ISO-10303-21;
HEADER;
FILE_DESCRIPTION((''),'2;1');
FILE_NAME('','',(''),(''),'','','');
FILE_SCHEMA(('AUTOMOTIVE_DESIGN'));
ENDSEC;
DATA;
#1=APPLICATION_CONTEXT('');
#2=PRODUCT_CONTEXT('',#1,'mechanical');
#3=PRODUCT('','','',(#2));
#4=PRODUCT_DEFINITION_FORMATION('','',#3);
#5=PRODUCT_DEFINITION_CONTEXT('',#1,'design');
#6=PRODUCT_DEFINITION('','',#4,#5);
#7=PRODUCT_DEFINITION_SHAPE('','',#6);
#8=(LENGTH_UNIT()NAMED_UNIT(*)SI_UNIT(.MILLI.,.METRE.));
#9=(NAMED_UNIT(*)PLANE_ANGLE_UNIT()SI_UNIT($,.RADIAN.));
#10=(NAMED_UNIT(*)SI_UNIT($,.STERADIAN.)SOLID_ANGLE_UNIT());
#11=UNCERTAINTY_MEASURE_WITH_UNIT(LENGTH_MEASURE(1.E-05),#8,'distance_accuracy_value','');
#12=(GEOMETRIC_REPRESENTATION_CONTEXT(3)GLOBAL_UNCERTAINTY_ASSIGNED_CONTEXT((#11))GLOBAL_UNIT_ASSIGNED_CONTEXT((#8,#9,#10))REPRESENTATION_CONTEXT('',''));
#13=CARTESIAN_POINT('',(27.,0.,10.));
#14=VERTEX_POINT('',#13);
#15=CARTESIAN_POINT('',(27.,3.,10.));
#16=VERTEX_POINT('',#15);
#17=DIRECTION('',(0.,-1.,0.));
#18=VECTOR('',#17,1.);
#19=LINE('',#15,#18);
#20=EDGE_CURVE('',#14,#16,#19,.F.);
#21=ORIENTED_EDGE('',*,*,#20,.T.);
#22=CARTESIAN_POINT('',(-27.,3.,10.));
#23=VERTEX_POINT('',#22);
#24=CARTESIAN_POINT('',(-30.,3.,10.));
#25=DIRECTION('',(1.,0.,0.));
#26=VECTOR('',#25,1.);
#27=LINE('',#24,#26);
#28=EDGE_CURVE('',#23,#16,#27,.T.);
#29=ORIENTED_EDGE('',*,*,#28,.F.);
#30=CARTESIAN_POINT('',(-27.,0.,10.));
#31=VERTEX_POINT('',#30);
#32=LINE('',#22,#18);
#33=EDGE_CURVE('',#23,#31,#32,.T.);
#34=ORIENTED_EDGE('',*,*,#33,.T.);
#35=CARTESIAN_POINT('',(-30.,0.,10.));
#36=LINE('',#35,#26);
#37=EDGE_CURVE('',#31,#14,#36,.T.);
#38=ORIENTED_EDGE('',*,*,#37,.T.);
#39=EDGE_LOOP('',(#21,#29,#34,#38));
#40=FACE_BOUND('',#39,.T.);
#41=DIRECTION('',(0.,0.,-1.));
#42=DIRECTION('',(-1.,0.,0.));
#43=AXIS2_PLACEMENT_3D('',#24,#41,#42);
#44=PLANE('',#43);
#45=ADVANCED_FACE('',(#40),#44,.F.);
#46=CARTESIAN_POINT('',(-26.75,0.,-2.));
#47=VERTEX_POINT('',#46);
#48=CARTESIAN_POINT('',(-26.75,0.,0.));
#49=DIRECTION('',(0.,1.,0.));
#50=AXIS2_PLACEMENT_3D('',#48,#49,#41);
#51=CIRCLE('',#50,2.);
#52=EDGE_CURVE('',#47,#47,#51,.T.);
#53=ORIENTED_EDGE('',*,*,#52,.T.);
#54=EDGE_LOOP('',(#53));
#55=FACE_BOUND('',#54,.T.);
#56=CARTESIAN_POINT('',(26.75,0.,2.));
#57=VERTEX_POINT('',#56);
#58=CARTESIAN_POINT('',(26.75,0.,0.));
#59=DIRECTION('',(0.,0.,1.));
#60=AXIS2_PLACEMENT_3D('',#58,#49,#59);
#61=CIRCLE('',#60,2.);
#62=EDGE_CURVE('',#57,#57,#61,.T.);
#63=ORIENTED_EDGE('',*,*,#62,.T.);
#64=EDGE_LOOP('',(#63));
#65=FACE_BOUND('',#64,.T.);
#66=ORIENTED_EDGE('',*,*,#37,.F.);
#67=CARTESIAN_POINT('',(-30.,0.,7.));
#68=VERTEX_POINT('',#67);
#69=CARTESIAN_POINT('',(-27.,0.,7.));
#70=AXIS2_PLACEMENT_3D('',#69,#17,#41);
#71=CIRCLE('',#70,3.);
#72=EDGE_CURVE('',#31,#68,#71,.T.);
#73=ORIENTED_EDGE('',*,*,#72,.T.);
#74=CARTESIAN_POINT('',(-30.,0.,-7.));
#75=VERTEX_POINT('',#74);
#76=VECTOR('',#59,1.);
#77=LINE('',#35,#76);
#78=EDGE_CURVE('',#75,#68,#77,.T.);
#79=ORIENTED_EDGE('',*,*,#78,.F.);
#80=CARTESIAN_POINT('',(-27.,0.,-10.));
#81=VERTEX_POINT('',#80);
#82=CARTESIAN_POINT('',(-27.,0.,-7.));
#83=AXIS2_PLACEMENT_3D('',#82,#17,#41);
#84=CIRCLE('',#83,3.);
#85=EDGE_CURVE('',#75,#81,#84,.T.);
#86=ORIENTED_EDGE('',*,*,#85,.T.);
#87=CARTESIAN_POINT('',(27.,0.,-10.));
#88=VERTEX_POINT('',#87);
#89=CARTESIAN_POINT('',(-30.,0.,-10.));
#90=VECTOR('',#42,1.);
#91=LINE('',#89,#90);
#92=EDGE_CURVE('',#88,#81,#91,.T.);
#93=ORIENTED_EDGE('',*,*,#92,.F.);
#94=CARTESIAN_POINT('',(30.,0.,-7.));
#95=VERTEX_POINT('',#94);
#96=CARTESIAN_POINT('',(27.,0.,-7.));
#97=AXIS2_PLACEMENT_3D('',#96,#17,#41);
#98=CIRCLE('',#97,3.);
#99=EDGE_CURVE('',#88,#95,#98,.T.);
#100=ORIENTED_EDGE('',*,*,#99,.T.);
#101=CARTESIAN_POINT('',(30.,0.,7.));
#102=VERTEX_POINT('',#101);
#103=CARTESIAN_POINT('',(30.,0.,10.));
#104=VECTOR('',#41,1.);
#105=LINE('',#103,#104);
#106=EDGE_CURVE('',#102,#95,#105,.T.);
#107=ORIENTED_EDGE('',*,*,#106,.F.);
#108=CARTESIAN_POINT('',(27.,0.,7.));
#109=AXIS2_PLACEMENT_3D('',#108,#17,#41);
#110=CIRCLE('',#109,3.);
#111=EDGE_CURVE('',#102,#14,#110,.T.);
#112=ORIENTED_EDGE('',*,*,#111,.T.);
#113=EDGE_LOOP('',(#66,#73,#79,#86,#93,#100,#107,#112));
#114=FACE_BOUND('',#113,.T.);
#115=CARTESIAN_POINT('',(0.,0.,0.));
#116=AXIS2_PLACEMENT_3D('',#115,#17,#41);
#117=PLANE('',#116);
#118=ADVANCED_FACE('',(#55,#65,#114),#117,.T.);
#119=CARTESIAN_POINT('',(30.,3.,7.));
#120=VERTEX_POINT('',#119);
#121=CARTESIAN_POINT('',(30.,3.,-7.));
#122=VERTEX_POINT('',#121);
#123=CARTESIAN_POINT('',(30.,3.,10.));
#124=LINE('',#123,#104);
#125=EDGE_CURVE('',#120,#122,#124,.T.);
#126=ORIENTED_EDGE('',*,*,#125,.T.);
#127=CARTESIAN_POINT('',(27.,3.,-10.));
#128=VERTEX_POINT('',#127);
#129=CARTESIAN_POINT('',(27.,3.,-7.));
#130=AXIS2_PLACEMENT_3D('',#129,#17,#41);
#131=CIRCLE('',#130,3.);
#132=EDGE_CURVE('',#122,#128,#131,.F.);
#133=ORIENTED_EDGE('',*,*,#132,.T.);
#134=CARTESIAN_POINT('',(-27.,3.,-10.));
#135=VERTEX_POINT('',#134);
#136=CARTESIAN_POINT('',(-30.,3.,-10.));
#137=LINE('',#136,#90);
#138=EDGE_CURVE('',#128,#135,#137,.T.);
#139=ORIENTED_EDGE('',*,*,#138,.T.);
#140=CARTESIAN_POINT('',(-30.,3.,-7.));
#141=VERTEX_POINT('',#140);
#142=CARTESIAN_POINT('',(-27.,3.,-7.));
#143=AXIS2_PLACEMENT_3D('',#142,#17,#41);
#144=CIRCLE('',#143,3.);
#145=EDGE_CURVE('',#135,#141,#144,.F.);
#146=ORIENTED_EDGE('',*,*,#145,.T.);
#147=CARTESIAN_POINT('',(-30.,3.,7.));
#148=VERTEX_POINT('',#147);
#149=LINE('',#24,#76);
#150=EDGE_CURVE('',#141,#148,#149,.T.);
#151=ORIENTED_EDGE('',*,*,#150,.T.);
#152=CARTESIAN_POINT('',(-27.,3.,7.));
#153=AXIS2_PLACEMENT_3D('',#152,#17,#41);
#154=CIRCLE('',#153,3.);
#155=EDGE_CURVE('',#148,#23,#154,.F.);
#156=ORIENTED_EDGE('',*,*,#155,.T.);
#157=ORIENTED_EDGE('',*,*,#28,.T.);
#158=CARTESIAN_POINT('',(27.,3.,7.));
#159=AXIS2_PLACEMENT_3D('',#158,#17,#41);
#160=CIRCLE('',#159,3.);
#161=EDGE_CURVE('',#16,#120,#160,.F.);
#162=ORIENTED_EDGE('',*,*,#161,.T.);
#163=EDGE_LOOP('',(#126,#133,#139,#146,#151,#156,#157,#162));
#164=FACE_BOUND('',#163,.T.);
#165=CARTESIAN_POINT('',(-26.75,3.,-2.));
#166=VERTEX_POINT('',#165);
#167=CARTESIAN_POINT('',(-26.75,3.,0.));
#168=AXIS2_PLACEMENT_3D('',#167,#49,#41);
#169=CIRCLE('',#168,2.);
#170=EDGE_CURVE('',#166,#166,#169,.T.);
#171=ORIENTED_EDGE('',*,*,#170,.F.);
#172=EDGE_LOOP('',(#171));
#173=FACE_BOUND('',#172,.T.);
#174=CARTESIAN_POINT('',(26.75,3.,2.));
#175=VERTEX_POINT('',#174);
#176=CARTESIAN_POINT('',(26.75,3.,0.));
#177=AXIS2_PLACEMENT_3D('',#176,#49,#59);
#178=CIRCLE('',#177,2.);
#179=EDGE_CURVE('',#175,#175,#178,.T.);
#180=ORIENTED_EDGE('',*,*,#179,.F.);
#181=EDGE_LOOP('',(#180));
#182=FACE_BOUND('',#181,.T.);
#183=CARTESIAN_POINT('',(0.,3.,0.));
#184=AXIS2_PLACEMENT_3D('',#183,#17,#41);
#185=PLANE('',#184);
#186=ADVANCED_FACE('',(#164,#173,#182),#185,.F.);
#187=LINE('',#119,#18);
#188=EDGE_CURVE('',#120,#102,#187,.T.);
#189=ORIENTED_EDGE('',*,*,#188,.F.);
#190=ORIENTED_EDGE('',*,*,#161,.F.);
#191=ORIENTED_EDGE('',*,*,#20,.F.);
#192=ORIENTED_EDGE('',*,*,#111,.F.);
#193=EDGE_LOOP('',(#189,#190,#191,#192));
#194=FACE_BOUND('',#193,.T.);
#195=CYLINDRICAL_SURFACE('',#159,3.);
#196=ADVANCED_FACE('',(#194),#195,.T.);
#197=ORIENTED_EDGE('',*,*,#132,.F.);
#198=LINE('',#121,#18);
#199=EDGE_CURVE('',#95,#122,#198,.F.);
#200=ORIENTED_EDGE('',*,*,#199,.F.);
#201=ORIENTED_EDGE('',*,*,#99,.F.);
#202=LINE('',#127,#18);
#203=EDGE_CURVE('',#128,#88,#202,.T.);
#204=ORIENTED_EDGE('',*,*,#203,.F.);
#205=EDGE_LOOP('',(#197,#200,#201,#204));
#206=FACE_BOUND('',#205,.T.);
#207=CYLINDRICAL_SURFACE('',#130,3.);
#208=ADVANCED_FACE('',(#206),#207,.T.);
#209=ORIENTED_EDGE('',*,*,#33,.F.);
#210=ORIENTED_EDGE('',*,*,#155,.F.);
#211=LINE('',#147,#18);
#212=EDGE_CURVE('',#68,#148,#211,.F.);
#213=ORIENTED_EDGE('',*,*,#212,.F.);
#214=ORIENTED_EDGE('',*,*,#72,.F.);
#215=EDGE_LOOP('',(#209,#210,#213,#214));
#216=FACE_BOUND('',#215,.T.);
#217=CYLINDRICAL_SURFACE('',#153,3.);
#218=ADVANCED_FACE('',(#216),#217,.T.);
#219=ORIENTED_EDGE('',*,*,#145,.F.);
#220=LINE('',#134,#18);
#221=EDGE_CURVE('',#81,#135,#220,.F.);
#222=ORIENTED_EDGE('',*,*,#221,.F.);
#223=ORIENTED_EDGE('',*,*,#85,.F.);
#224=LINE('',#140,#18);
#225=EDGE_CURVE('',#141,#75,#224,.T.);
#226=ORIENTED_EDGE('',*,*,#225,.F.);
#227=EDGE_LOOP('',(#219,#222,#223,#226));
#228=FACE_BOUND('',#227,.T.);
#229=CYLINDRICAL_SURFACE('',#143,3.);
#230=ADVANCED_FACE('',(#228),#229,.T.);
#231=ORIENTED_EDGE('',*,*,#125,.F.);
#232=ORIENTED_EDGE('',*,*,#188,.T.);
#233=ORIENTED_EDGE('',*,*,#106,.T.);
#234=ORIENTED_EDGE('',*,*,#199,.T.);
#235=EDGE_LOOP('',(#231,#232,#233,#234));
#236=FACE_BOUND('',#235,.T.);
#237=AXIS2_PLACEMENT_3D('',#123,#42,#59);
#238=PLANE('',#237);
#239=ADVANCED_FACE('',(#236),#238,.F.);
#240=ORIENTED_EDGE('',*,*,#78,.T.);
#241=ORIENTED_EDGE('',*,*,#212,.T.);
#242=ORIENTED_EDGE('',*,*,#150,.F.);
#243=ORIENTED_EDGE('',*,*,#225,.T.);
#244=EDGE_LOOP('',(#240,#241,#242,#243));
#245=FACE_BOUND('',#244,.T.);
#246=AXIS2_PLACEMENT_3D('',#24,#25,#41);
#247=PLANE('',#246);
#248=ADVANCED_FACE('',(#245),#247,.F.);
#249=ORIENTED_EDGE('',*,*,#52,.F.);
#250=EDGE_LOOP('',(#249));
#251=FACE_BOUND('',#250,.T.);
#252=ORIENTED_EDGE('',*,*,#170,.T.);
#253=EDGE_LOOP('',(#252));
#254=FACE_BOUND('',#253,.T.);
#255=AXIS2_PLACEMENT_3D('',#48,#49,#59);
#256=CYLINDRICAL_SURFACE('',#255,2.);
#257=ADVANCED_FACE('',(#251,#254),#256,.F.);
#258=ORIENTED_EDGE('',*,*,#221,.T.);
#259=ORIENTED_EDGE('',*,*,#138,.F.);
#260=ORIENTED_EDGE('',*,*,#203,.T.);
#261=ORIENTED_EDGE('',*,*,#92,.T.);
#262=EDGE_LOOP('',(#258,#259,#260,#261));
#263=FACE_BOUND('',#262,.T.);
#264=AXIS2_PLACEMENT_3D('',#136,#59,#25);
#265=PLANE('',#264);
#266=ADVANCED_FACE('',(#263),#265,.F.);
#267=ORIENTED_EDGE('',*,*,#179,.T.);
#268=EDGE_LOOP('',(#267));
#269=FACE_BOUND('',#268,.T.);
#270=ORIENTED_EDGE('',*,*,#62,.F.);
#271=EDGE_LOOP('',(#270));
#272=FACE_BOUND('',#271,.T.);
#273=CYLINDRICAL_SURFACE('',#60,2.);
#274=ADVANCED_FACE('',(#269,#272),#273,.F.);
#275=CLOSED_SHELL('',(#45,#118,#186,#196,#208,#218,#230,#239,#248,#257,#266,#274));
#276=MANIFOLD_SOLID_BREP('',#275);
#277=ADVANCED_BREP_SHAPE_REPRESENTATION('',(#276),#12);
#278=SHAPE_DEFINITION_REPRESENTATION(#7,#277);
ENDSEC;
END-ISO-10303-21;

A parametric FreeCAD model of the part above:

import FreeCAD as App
import Part
import Sketcher
from FreeCAD import Vector


def edges_at(feature, points):
    """Names of the edges that pass closest to the given points."""
    edges = feature.Shape.Edges
    near = lambda p: min(range(len(edges)), key=lambda i: edges[i].distToShape(Part.Vertex(*p))[0])
    return sorted({f"Edge{near(p) + 1}" for p in points})

doc = App.newDocument("Part")
params = doc.addObject("Spreadsheet::Sheet", "Params")
for row, (alias, value) in enumerate([
    ("sketch1_width", "60 mm"),
    ("sketch1_height", "20 mm"),
    ("pad1_length", "3 mm"),
    ("fillet_radius", "3 mm"),
    ("sketch2_diameter", "4 mm"),
    ("pocket1_length", "3 mm"),
], start=1):
    params.set(f"A{row}", alias)
    params.set(f"B{row}", "=" + value)
    params.setAlias(f"B{row}", alias)

body = doc.addObject("PartDesign::Body", "Body")

sketch1 = body.newObject("Sketcher::SketchObject", "Sketch")
sketch1.AttachmentSupport = (doc.getObject("XZ_Plane"), [""])
sketch1.MapMode = "FlatFace"
sketch1.addGeometry([
    Part.LineSegment(Vector(-30, -10, 0), Vector(-30, 10, 0)),
    Part.LineSegment(Vector(-30, 10, 0), Vector(30, 10, 0)),
    Part.LineSegment(Vector(30, 10, 0), Vector(30, -10, 0)),
    Part.LineSegment(Vector(30, -10, 0), Vector(-30, -10, 0)),
], False)
sketch1.addConstraint([
    Sketcher.Constraint("Coincident", 0, 2, 1, 1),
    Sketcher.Constraint("Coincident", 1, 2, 2, 1),
    Sketcher.Constraint("Coincident", 2, 2, 3, 1),
    Sketcher.Constraint("Coincident", 3, 2, 0, 1),
    Sketcher.Constraint("Vertical", 0),
    Sketcher.Constraint("Horizontal", 1),
    Sketcher.Constraint("Vertical", 2),
    Sketcher.Constraint("Horizontal", 3),
    Sketcher.Constraint("Symmetric", 0, 2, 2, 2, -1, 1),
    Sketcher.Constraint("DistanceX", 1, 1, 1, 2, 60.0),
    Sketcher.Constraint("DistanceY", 0, 1, 0, 2, 20.0),
])
sketch1.setExpression("Constraints[9]", "Params.sketch1_width")
sketch1.setExpression("Constraints[10]", "Params.sketch1_height")
pad1 = body.newObject("PartDesign::Pad", "Pad")
pad1.Profile = sketch1
pad1.setExpression("Length", "Params.pad1_length")
pad1.Reversed = True
doc.recompute()

fillet = body.newObject("PartDesign::Fillet", "Fillet")
fillet.Base = (pad1, edges_at(pad1, [
    (30, 1.5, 10),
    (-30, 1.5, 10),
    (-30, 1.5, -10),
    (30, 1.5, -10),
]))
fillet.setExpression("Radius", "Params.fillet_radius")

sketch2 = body.newObject("Sketcher::SketchObject", "Sketch001")
sketch2.AttachmentSupport = (doc.getObject("XZ_Plane"), [""])
sketch2.MapMode = "FlatFace"
sketch2.AttachmentOffset = App.Placement(Vector(0, 0, -3), App.Rotation())
sketch2.addGeometry([
    Part.Circle(Vector(26.8, 0, 0), Vector(0, 0, 1), 2),
    Part.Circle(Vector(-26.8, 0, 0), Vector(0, 0, 1), 2),
], False)
sketch2.addConstraint([
    Sketcher.Constraint("Equal", 0, 1),
    Sketcher.Constraint("Symmetric", 0, 3, 1, 3, -1, 1),
    Sketcher.Constraint("PointOnObject", 0, 3, -1),
    Sketcher.Constraint("Diameter", 0, 4.0),
    Sketcher.Constraint("DistanceX", 1, 3, 0, 3, 53.5),
])
sketch2.setExpression("Constraints[3]", "Params.sketch2_diameter")
pocket1 = body.newObject("PartDesign::Pocket", "Pocket")
pocket1.Profile = sketch2
pocket1.setExpression("Length", "Params.pocket1_length")
pocket1.Reversed = True

doc.recompute()
